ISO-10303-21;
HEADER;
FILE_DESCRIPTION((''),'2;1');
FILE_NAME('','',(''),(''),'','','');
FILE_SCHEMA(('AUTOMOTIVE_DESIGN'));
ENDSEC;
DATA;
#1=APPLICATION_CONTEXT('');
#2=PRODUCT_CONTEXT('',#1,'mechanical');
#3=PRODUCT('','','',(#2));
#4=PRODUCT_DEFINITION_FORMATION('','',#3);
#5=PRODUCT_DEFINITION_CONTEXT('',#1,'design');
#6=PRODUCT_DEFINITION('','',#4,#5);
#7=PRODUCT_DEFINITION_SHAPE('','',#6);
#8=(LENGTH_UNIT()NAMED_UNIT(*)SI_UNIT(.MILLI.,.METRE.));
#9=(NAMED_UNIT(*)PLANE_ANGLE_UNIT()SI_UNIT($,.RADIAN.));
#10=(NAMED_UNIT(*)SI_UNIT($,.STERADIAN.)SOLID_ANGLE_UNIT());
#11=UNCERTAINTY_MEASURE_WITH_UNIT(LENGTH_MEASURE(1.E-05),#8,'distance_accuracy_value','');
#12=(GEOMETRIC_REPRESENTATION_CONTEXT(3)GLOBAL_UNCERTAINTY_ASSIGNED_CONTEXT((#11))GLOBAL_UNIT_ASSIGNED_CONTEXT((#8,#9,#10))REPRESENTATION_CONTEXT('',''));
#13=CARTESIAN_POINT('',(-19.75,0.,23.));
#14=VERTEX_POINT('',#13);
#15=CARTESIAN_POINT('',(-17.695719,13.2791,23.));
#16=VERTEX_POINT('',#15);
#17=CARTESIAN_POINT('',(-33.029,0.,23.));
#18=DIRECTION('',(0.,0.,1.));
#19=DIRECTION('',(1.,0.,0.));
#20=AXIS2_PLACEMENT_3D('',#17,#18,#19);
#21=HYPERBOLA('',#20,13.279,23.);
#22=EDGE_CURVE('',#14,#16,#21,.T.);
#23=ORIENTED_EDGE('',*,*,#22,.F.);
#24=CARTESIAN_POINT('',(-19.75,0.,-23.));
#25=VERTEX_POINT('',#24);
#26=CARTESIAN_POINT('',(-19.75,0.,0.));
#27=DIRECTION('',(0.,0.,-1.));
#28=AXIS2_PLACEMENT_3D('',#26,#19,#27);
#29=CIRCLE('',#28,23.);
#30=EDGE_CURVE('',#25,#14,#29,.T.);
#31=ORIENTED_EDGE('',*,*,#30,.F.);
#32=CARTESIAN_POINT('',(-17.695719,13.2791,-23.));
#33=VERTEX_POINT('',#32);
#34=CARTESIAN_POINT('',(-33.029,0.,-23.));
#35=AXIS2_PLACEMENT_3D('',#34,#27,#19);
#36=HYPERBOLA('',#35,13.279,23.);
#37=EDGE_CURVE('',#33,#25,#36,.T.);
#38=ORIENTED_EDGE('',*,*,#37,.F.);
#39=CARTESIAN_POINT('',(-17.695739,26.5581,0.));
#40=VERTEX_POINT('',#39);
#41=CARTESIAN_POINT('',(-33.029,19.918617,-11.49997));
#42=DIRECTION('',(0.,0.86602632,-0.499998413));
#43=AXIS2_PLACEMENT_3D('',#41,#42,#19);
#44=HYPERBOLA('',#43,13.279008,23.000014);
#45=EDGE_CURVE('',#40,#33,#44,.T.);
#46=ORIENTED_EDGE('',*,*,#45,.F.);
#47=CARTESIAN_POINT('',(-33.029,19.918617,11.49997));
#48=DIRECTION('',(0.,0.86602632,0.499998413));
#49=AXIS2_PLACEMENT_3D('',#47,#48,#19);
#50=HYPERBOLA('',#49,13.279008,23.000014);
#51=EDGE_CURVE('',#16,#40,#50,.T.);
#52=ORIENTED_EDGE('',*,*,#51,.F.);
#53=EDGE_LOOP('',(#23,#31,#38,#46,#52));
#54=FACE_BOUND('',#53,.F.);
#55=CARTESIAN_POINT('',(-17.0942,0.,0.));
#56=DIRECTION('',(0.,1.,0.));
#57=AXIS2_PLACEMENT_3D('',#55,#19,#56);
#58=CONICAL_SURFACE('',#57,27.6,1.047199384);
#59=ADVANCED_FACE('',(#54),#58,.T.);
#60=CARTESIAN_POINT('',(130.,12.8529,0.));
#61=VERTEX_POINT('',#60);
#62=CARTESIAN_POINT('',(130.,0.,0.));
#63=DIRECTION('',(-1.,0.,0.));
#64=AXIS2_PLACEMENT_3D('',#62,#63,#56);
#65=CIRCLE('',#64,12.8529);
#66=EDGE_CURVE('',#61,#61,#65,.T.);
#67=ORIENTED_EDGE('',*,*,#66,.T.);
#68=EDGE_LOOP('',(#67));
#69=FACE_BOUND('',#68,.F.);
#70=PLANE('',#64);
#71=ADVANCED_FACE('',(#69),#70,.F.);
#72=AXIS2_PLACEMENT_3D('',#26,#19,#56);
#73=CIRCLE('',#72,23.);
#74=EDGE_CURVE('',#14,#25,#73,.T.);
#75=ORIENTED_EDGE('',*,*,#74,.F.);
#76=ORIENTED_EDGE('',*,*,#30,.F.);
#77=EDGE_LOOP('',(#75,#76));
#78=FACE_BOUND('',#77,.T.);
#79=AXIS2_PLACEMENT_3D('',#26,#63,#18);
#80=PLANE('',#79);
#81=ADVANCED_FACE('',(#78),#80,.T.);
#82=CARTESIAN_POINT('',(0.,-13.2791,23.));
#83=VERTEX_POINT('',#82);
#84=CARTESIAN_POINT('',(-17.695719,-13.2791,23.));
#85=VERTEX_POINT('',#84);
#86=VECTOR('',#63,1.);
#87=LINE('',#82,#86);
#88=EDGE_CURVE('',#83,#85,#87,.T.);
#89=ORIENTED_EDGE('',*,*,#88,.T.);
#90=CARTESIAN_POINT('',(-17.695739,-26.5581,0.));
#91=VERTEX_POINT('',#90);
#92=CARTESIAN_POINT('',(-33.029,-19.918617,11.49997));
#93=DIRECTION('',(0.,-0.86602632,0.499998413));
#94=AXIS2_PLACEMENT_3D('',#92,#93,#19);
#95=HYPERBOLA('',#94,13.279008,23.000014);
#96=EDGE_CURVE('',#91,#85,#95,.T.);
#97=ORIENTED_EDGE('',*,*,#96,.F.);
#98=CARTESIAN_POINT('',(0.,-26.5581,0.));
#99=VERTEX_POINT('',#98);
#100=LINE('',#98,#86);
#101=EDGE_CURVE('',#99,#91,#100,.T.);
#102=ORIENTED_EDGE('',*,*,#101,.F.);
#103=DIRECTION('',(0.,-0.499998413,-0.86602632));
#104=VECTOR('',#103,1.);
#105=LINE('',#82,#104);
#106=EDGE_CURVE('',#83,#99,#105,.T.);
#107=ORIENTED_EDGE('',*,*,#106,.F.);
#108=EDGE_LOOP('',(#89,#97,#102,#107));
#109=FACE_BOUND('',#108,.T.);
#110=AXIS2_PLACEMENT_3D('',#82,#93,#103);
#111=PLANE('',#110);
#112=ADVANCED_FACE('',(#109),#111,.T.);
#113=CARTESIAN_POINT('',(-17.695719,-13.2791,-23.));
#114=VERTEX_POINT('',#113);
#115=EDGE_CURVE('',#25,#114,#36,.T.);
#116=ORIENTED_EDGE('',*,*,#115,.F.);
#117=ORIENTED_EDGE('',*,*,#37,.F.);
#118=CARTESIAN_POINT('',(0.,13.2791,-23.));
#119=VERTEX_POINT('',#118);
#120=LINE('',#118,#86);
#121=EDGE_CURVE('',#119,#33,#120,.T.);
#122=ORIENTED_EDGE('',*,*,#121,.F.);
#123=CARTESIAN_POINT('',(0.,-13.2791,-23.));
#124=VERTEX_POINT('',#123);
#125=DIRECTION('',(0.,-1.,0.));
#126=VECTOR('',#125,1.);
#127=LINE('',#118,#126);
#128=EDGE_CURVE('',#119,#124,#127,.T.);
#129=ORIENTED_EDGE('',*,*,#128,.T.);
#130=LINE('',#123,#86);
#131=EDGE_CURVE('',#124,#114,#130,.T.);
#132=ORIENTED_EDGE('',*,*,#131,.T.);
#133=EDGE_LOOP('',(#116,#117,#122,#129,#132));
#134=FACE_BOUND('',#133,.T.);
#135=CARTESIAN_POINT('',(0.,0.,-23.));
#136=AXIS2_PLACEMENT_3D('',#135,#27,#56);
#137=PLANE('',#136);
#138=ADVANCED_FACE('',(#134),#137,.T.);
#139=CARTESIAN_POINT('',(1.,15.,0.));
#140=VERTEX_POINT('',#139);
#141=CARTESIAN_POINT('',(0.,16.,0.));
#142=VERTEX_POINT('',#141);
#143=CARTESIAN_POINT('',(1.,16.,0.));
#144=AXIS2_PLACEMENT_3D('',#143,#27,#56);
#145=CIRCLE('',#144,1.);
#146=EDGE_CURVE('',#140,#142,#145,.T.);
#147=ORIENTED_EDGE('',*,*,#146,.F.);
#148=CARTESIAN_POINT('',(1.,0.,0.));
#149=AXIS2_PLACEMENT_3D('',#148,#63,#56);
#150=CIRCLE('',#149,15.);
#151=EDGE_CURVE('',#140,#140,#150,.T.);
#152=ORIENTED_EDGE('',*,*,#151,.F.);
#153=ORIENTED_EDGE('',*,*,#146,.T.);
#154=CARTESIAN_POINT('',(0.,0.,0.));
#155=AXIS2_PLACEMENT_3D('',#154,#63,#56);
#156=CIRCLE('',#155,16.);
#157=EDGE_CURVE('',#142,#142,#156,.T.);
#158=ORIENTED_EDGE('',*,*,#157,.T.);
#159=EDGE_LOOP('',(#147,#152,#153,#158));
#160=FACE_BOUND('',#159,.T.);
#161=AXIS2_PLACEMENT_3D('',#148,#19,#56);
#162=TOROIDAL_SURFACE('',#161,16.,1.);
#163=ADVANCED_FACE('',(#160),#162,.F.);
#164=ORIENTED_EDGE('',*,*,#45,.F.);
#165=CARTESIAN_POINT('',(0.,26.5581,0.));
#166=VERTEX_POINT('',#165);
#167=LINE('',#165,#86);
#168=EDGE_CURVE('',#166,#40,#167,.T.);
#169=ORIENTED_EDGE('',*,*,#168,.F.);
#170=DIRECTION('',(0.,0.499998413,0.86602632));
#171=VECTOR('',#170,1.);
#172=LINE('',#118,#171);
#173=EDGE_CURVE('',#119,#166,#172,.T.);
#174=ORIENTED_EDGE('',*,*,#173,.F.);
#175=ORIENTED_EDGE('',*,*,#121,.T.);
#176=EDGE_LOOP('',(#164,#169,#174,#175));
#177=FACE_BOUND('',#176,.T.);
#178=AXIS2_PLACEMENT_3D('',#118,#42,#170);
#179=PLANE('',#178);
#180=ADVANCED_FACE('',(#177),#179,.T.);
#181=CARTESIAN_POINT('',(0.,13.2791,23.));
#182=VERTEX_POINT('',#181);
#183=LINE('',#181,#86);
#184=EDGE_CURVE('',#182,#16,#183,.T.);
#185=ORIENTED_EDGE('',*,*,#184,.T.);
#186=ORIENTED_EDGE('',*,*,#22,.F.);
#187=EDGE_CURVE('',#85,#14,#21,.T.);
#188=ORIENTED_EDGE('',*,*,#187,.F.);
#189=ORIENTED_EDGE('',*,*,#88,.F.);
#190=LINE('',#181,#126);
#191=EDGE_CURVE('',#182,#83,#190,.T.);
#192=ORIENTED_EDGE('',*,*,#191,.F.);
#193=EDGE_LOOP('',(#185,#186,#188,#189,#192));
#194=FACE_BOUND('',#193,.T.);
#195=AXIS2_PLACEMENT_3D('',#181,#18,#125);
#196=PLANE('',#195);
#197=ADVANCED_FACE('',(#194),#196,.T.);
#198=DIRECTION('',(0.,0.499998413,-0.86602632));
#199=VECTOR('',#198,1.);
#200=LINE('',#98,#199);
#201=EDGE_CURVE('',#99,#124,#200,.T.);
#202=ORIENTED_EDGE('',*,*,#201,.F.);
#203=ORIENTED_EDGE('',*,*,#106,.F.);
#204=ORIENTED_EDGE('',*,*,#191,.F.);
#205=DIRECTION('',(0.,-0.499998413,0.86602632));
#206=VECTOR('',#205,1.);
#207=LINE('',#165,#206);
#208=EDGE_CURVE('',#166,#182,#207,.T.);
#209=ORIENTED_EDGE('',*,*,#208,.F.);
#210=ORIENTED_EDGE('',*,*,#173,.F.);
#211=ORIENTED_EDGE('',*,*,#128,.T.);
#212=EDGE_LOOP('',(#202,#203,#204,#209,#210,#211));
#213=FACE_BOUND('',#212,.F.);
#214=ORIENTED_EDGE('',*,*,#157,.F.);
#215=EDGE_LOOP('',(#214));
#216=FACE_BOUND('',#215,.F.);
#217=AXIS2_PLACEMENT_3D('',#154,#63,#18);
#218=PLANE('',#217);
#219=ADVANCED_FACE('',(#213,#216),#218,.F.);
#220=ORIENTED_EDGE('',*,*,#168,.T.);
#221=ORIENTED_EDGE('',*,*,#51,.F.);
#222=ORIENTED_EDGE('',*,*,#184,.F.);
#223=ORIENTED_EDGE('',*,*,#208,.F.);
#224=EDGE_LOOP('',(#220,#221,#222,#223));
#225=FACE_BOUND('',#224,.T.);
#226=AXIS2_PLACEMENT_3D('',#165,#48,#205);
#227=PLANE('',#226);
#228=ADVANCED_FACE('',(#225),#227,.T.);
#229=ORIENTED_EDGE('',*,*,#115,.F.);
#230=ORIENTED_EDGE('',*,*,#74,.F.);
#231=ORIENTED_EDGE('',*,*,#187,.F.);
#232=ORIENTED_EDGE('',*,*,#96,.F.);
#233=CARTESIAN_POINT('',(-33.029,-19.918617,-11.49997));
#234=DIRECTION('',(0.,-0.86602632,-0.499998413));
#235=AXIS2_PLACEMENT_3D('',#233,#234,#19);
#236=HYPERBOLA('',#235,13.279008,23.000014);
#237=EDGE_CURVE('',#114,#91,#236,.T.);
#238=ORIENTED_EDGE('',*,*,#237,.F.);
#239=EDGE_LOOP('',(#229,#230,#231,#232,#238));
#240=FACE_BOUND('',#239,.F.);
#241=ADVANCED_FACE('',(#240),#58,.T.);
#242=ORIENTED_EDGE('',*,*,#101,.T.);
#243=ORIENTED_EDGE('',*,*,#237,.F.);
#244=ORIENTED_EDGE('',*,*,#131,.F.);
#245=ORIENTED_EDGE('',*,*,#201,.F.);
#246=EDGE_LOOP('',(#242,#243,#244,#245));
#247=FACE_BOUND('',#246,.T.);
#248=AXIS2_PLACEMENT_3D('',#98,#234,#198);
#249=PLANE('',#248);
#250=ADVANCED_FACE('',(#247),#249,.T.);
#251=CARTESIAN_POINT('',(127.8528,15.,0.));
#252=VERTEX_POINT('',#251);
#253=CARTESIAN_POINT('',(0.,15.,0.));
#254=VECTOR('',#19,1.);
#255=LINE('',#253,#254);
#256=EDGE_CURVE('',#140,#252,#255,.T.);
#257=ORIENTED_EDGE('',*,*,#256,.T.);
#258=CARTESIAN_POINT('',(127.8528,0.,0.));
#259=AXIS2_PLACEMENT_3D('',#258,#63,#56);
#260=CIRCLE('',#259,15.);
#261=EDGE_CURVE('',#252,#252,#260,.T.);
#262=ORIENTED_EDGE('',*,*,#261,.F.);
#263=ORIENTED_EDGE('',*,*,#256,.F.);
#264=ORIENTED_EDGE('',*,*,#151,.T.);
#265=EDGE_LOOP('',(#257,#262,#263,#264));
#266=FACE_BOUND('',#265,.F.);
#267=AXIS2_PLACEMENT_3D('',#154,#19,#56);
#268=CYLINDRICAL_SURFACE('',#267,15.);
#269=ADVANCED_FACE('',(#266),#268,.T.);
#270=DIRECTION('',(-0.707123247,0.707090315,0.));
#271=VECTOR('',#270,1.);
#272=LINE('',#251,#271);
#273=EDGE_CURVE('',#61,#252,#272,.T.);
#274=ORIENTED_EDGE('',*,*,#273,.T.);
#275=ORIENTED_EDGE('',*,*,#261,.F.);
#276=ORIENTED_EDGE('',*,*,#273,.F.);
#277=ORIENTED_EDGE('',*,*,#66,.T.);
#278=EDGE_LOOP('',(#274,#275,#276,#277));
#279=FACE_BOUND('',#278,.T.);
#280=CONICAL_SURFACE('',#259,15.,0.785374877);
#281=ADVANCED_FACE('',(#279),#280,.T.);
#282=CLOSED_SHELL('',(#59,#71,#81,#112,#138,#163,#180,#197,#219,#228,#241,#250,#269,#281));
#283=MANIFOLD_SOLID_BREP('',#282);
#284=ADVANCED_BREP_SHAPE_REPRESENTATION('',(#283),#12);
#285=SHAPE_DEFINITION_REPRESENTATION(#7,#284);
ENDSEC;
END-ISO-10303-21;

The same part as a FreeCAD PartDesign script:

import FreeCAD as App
import Part
import Sketcher
from FreeCAD import Vector
Q = App.Units.Quantity


def edges_at(feature, points):
    """Names of the edges that pass closest to the given points."""
    edges = feature.Shape.Edges
    near = lambda p: min(range(len(edges)), key=lambda i: edges[i].distToShape(Part.Vertex(*p))[0])
    return sorted({f"Edge{near(p) + 1}" for p in points})

doc = App.newDocument("Part")
body = doc.addObject("PartDesign::Body", "Body")

sketch1 = body.newObject("Sketcher::SketchObject", "Sketch")
sketch1.AttachmentSupport = (doc.getObject("XY_Plane"), [""])
sketch1.MapMode = "FlatFace"
sketch1.addGeometry([
    Part.LineSegment(Vector(130, 15, 0), Vector(0, 15, 0)),
    Part.LineSegment(Vector(0, 15, 0), Vector(0, 0, 0)),
    Part.LineSegment(Vector(0, 0, 0), Vector(130, 0, 0)),
    Part.LineSegment(Vector(130, 0, 0), Vector(130, 15, 0)),
], False)
sketch1.addConstraint([
    Sketcher.Constraint("Coincident", 0, 2, 1, 1),
    Sketcher.Constraint("Coincident", 1, 2, 2, 1),
    Sketcher.Constraint("Coincident", 2, 2, 3, 1),
    Sketcher.Constraint("Coincident", 3, 2, 0, 1),
    Sketcher.Constraint("Horizontal", 0),
    Sketcher.Constraint("Vertical", 1),
    Sketcher.Constraint("Horizontal", 2),
    Sketcher.Constraint("Vertical", 3),
    Sketcher.Constraint("Coincident", 1, 2, -1, 1),
    Sketcher.Constraint("DistanceX", 0, 2, 0, 1, Q("130 mm")),
    Sketcher.Constraint("DistanceY", 1, 2, 1, 1, Q("15 mm")),
])
revolution = body.newObject("PartDesign::Revolution", "Revolution")
revolution.Profile = sketch1
revolution.ReferenceAxis = (sketch1, ["H_Axis"])
revolution.Angle = 360

sketch2 = body.newObject("Sketcher::SketchObject", "Sketch001")
sketch2.AttachmentSupport = (doc.getObject("YZ_Plane"), [""])
sketch2.MapMode = "FlatFace"
sketch2.addGeometry([
    Part.LineSegment(Vector(13, -23, 0), Vector(-13, -23, 0)),
    Part.LineSegment(Vector(-13, -23, 0), Vector(-27, 0, 0)),
    Part.LineSegment(Vector(-27, 0, 0), Vector(-13, 23, 0)),
    Part.LineSegment(Vector(-13, 23, 0), Vector(13, 23, 0)),
    Part.LineSegment(Vector(13, 23, 0), Vector(27, 0, 0)),
    Part.LineSegment(Vector(27, 0, 0), Vector(13, -23, 0)),
], False)
sketch2.addConstraint([
    Sketcher.Constraint("Coincident", 0, 2, 1, 1),
    Sketcher.Constraint("Coincident", 1, 2, 2, 1),
    Sketcher.Constraint("Coincident", 2, 2, 3, 1),
    Sketcher.Constraint("Coincident", 3, 2, 4, 1),
    Sketcher.Constraint("Coincident", 4, 2, 5, 1),
    Sketcher.Constraint("Coincident", 5, 2, 0, 1),
    Sketcher.Constraint("Horizontal", 0),
    Sketcher.Constraint("Horizontal", 3),
    Sketcher.Constraint("Symmetric", 0, 2, 3, 2, -1, 1),
    Sketcher.Constraint("Symmetric", 1, 2, 4, 2, -1, 1),
    Sketcher.Constraint("PointOnObject", 1, 2, -1),
    Sketcher.Constraint("Parallel", 2, 5),
    Sketcher.Constraint("Vertical", 0, 2, 2, 2),
    Sketcher.Constraint("DistanceY", 0, 2, 2, 2, Q("46 mm")),
    Sketcher.Constraint("Angle", 1, Q("120 deg")),
    Sketcher.Constraint("DistanceX", 0, 2, 0, 1, Q("26.5582 mm")),
])
pad1 = body.newObject("PartDesign::Pad", "Pad")
pad1.Profile = sketch2
pad1.Length = 19.75
pad1.Reversed = True

sketch3 = body.newObject("Sketcher::SketchObject", "Sketch002")
sketch3.AttachmentSupport = (doc.getObject("XY_Plane"), [""])
sketch3.MapMode = "FlatFace"
sketch3.addGeometry([
    Part.LineSegment(Vector(-19.8, 23, 0), Vector(-17.1, 27.6, 0)),
    Part.LineSegment(Vector(-17.1, 27.6, 0), Vector(-19.8, 27.6, 0)),
    Part.LineSegment(Vector(-19.8, 27.6, 0), Vector(-19.8, 23, 0)),
], False)
sketch3.addConstraint([
    Sketcher.Constraint("Coincident", 0, 2, 1, 1),
    Sketcher.Constraint("Coincident", 1, 2, 2, 1),
    Sketcher.Constraint("Coincident", 2, 2, 0, 1),
    Sketcher.Constraint("Horizontal", 1),
    Sketcher.Constraint("Vertical", 2),
    Sketcher.Constraint("DistanceX", 1, 2, -1, 1, Q("19.75 mm")),
    Sketcher.Constraint("Angle", 0, Q("60 deg")),
    Sketcher.Constraint("DistanceY", 2, 2, 2, 1, Q("4.6 mm")),
    Sketcher.Constraint("DistanceY", -1, 1, 2, 2, Q("23 mm")),
])
groove = body.newObject("PartDesign::Groove", "Groove")
groove.Profile = sketch3
groove.ReferenceAxis = (sketch3, ["H_Axis"])
groove.Angle = 360
doc.recompute()

chamfer = body.newObject("PartDesign::Chamfer", "Chamfer")
chamfer.Base = (groove, edges_at(groove, [(130, -15, 0)]))
chamfer.ChamferType = "Two distances"
chamfer.Size = 2.1471
chamfer.Size2 = 2.1472
doc.recompute()

fillet = body.newObject("PartDesign::Fillet", "Fillet")
fillet.Base = (chamfer, edges_at(chamfer, [(0, -15, 0)]))
fillet.Radius = 1

doc.recompute()
